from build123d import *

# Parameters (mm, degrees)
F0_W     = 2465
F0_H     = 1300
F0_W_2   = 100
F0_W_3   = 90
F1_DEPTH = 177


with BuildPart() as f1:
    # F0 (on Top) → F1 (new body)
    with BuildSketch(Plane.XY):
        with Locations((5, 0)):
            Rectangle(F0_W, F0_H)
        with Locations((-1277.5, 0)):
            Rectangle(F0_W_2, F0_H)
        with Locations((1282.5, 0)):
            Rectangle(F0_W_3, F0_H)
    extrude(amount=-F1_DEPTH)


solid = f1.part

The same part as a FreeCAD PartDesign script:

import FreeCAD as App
import Part
import Sketcher

V = App.Vector


def add_polygon(sketch, points):
    """Adds a closed chain of lines whose ends are joined by coincident constraints."""
    first, n = sketch.GeometryCount, len(points)
    for a, b in zip(points, points[1:] + points[:1]):
        sketch.addGeometry(Part.LineSegment(App.Vector(*a, 0), App.Vector(*b, 0)), False)
    for i in range(n):
        sketch.addConstraint(Sketcher.Constraint("Coincident", first + i, 2, first + (i + 1) % n, 1))

doc = App.newDocument("Part")
body = doc.addObject("PartDesign::Body", "Body")

sketch1 = body.newObject("Sketcher::SketchObject", "Sketch")
sketch1.AttachmentSupport = (doc.getObject("XY_Plane"), [""])
sketch1.MapMode = "FlatFace"
add_polygon(sketch1, [(-1328, 650), (-1328, -650), (1328, -650), (1328, 650)])
sketch1.addConstraint(Sketcher.Constraint("Vertical", 0))
sketch1.addConstraint(Sketcher.Constraint("Horizontal", 1))
sketch1.addConstraint(Sketcher.Constraint("Vertical", 2))
sketch1.addConstraint(Sketcher.Constraint("Horizontal", 3))
sketch1.addConstraint(Sketcher.Constraint("Symmetric", 0, 2, 2, 2, -1, 1))
sketch1.addConstraint(Sketcher.Constraint("DistanceX", 1, 1, 1, 2, 2655.0))
sketch1.addConstraint(Sketcher.Constraint("DistanceY", 0, 2, 0, 1, 1300.0))
pad1 = body.newObject("PartDesign::Pad", "Pad")
pad1.Profile = sketch1
pad1.Length = 177
pad1.Reversed = True

doc.recompute()
